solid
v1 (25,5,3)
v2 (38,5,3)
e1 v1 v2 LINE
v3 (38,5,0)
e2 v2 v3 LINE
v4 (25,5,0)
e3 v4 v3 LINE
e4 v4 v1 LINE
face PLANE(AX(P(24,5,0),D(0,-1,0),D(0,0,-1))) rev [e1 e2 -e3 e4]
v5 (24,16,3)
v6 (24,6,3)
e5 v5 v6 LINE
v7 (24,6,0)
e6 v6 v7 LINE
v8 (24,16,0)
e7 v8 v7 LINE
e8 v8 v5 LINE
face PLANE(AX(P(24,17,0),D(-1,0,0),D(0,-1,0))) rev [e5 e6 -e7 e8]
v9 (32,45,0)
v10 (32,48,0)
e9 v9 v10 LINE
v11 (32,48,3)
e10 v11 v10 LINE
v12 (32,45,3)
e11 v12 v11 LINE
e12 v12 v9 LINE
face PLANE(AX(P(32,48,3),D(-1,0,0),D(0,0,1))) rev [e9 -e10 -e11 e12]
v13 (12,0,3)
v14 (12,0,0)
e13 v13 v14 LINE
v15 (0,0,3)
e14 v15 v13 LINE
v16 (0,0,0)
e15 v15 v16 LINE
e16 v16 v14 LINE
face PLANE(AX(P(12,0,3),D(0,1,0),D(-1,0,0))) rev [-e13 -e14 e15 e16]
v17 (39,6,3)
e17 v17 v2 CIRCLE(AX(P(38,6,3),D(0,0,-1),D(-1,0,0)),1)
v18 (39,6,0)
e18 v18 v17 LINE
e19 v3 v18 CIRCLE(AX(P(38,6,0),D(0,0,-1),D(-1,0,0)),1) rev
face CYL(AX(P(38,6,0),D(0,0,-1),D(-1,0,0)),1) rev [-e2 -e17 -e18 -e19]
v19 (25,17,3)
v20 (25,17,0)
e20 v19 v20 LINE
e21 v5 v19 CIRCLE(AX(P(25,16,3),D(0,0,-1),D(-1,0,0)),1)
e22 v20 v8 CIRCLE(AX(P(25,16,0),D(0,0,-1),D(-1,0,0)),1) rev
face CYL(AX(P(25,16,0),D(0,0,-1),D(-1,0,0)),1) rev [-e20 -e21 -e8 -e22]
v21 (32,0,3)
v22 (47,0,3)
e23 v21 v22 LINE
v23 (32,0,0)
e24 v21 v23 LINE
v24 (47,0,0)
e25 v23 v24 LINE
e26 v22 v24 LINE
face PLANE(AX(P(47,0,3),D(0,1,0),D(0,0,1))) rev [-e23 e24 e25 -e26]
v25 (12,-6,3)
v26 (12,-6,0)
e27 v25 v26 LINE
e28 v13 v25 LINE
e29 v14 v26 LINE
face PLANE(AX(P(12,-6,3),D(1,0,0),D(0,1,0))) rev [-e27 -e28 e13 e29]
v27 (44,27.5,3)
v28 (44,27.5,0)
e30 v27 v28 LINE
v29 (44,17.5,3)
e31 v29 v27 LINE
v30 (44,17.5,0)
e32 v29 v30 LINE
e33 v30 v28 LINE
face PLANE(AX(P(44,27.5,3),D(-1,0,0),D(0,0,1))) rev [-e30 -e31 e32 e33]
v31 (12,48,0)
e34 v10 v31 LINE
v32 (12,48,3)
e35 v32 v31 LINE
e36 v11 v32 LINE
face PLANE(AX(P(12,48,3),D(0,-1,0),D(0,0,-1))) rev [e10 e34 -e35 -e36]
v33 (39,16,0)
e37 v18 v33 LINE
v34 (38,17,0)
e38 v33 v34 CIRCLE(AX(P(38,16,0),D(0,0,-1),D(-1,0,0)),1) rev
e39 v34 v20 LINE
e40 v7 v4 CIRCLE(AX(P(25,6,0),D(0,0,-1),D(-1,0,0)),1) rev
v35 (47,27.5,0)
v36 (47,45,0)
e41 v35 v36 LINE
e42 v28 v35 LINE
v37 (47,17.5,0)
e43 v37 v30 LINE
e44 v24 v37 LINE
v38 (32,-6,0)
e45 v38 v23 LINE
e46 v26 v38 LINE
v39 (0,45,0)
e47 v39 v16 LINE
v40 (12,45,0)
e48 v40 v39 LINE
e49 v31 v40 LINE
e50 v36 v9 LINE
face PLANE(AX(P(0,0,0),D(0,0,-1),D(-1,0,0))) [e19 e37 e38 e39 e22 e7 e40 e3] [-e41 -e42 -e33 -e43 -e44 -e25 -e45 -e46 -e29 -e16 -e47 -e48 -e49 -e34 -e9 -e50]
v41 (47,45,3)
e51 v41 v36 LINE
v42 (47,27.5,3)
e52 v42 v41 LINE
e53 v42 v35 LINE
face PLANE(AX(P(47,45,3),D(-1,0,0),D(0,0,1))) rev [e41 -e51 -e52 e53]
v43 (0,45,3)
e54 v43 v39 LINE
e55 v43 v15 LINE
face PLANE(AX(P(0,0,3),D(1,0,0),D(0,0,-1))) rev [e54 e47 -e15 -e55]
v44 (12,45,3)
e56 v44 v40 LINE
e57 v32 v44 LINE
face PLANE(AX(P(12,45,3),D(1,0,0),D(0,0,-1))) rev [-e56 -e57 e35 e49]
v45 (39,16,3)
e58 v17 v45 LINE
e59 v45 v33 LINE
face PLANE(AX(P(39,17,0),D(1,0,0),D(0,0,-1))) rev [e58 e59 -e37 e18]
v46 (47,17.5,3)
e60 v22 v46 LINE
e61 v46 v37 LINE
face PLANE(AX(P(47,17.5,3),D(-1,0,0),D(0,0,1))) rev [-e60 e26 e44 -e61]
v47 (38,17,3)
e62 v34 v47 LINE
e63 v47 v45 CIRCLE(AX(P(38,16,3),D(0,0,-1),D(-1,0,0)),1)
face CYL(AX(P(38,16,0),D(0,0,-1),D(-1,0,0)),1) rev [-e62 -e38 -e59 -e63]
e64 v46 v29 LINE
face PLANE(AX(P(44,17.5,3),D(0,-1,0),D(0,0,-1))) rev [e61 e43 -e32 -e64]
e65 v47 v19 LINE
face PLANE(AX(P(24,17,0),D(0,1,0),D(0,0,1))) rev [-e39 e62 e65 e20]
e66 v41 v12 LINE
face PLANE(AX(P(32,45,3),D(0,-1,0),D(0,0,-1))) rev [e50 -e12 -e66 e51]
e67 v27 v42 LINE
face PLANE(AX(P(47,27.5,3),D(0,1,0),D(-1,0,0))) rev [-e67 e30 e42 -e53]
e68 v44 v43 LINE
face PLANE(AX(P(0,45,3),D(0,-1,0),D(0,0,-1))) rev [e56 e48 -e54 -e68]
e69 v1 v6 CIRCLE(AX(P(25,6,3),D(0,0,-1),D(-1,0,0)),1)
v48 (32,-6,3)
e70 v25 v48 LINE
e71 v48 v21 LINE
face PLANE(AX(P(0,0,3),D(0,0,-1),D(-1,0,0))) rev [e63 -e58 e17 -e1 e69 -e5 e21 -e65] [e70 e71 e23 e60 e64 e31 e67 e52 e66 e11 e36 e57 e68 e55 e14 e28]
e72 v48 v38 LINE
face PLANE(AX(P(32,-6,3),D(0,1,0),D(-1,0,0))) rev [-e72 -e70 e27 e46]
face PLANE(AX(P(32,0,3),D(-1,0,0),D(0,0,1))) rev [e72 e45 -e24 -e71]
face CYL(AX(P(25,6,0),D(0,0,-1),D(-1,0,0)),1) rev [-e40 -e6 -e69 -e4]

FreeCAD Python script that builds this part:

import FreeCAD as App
import Part
import Sketcher

V = App.Vector


def edges_at(feature, points):
    """Names of the edges that pass closest to the given points."""
    edges = feature.Shape.Edges
    near = lambda p: min(range(len(edges)), key=lambda i: edges[i].distToShape(Part.Vertex(*p))[0])
    return sorted({f"Edge{near(p) + 1}" for p in points})

doc = App.newDocument("Part")
params = doc.addObject("Spreadsheet::Sheet", "Params")
for row, (alias, value) in enumerate([
    ("sketch1_width", "12 mm"),
    ("sketch1_width2", "20 mm"),
    ("sketch1_width3", "15 mm"),
    ("sketch1_width4", "3 mm"),
    ("sketch1_height", "45 mm"),
    ("pad1_length", "3 mm"),
    ("sketch2_width", "15 mm"),
    ("sketch2_height", "12 mm"),
    ("fillet_radius", "1 mm"),
], start=1):
    params.set(f"A{row}", alias)
    params.set(f"B{row}", "=" + value)
    params.setAlias(f"B{row}", alias)

body = doc.addObject("PartDesign::Body", "Body")

sketch1 = body.newObject("Sketcher::SketchObject", "Sketch")
sketch1.AttachmentSupport = (doc.getObject("XY_Plane"), [""])
sketch1.MapMode = "FlatFace"
sketch1.addGeometry([
    Part.LineSegment(V(0, 45, 0), V(0, 0, 0)),
    Part.LineSegment(V(0, 0, 0), V(12, 0, 0)),
    Part.LineSegment(V(12, 0, 0), V(12, -6, 0)),
    Part.LineSegment(V(12, -6, 0), V(32, -6, 0)),
    Part.LineSegment(V(32, -6, 0), V(32, 0, 0)),
    Part.LineSegment(V(32, 0, 0), V(47, 0, 0)),
    Part.LineSegment(V(47, 0, 0), V(47, 17.5, 0)),
    Part.LineSegment(V(47, 17.5, 0), V(44, 17.5, 0)),
    Part.LineSegment(V(44, 17.5, 0), V(44, 27.5, 0)),
    Part.LineSegment(V(44, 27.5, 0), V(47, 27.5, 0)),
    Part.LineSegment(V(47, 27.5, 0), V(47, 45, 0)),
    Part.LineSegment(V(47, 45, 0), V(32, 45, 0)),
    Part.LineSegment(V(32, 45, 0), V(32, 48, 0)),
    Part.LineSegment(V(32, 48, 0), V(12, 48, 0)),
    Part.LineSegment(V(12, 48, 0), V(12, 45, 0)),
    Part.LineSegment(V(12, 45, 0), V(0, 45, 0)),
], False)
sketch1.addConstraint([
    Sketcher.Constraint("Coincident", 0, 2, 1, 1),
    Sketcher.Constraint("Coincident", 1, 2, 2, 1),
    Sketcher.Constraint("Coincident", 2, 2, 3, 1),
    Sketcher.Constraint("Coincident", 3, 2, 4, 1),
    Sketcher.Constraint("Coincident", 4, 2, 5, 1),
    Sketcher.Constraint("Coincident", 5, 2, 6, 1),
    Sketcher.Constraint("Coincident", 6, 2, 7, 1),
    Sketcher.Constraint("Coincident", 7, 2, 8, 1),
    Sketcher.Constraint("Coincident", 8, 2, 9, 1),
    Sketcher.Constraint("Coincident", 9, 2, 10, 1),
    Sketcher.Constraint("Coincident", 10, 2, 11, 1),
    Sketcher.Constraint("Coincident", 11, 2, 12, 1),
    Sketcher.Constraint("Coincident", 12, 2, 13, 1),
    Sketcher.Constraint("Coincident", 13, 2, 14, 1),
    Sketcher.Constraint("Coincident", 14, 2, 15, 1),
    Sketcher.Constraint("Coincident", 15, 2, 0, 1),
    Sketcher.Constraint("Vertical", 0),
    Sketcher.Constraint("Horizontal", 1),
    Sketcher.Constraint("Vertical", 2),
    Sketcher.Constraint("Horizontal", 3),
    Sketcher.Constraint("Vertical", 4),
    Sketcher.Constraint("Horizontal", 5),
    Sketcher.Constraint("Vertical", 6),
    Sketcher.Constraint("Horizontal", 7),
    Sketcher.Constraint("Vertical", 8),
    Sketcher.Constraint("Horizontal", 9),
    Sketcher.Constraint("Vertical", 10),
    Sketcher.Constraint("Horizontal", 11),
    Sketcher.Constraint("Vertical", 12),
    Sketcher.Constraint("Horizontal", 13),
    Sketcher.Constraint("Vertical", 14),
    Sketcher.Constraint("Horizontal", 15),
    Sketcher.Constraint("Coincident", 0, 2, -1, 1),
    Sketcher.Constraint("PointOnObject", 4, 2, -1),
    Sketcher.Constraint("Horizontal", 11, 2, 14, 2),
    Sketcher.Constraint("Vertical", 6, 2, 9, 2),
    Sketcher.Constraint("Vertical", 4, 2, 11, 2),
    Sketcher.Constraint("Vertical", 2, 2, 13, 2),
    Sketcher.Constraint("Equal", 6, 10),
    Sketcher.Constraint("Equal", 9, 12),
    Sketcher.Constraint("DistanceX", 1, 1, 1, 2, 12.0),
    Sketcher.Constraint("DistanceX", 3, 1, 3, 2, 20.0),
    Sketcher.Constraint("DistanceX", 5, 1, 5, 2, 15.0),
    Sketcher.Constraint("DistanceX", 7, 2, 7, 1, 3.0),
    Sketcher.Constraint("DistanceY", 0, 2, 0, 1, 45.0),
    Sketcher.Constraint("DistanceY", 2, 2, 2, 1, 6.0),
    Sketcher.Constraint("DistanceY", 8, 1, 8, 2, 10.0),
])
sketch1.setExpression("Constraints[40]", "Params.sketch1_width")
sketch1.setExpression("Constraints[41]", "Params.sketch1_width2")
sketch1.setExpression("Constraints[42]", "Params.sketch1_width3")
sketch1.setExpression("Constraints[43]", "Params.sketch1_width4")
sketch1.setExpression("Constraints[44]", "Params.sketch1_height")
pad1 = body.newObject("PartDesign::Pad", "Pad")
pad1.Profile = sketch1
pad1.setExpression("Length", "Params.pad1_length")

sketch2 = body.newObject("Sketcher::SketchObject", "Sketch001")
sketch2.AttachmentSupport = (doc.getObject("XY_Plane"), [""])
sketch2.MapMode = "FlatFace"
sketch2.AttachmentOffset = App.Placement(V(0, 0, 3), App.Rotation())
sketch2.addGeometry([
    Part.LineSegment(V(24, 17, 0), V(24, 5, 0)),
    Part.LineSegment(V(24, 5, 0), V(39, 5, 0)),
    Part.LineSegment(V(39, 5, 0), V(39, 17, 0)),
    Part.LineSegment(V(39, 17, 0), V(24, 17, 0)),
], False)
sketch2.addConstraint([
    Sketcher.Constraint("Coincident", 0, 2, 1, 1),
    Sketcher.Constraint("Coincident", 1, 2, 2, 1),
    Sketcher.Constraint("Coincident", 2, 2, 3, 1),
    Sketcher.Constraint("Coincident", 3, 2, 0, 1),
    Sketcher.Constraint("Vertical", 0),
    Sketcher.Constraint("Horizontal", 1),
    Sketcher.Constraint("Vertical", 2),
    Sketcher.Constraint("Horizontal", 3),
    Sketcher.Constraint("DistanceX", 1, 1, 1, 2, 15.0),
    Sketcher.Constraint("DistanceY", 0, 2, 0, 1, 12.0),
    Sketcher.Constraint("DistanceX", -1, 1, 0, 2, 24.0),
    Sketcher.Constraint("DistanceY", -1, 1, 0, 2, 5.0),
])
sketch2.setExpression("Constraints[8]", "Params.sketch2_width")
sketch2.setExpression("Constraints[9]", "Params.sketch2_height")
pocket1 = body.newObject("PartDesign::Pocket", "Pocket")
pocket1.Profile = sketch2
pocket1.Type = "ThroughAll"
doc.recompute()

fillet = body.newObject("PartDesign::Fillet", "Fillet")
fillet.Base = (pocket1, edges_at(pocket1, [
    (24, 5, 1.5),
    (24, 17, 1.5),
    (39, 17, 1.5),
    (39, 5, 1.5),
]))
fillet.setExpression("Radius", "Params.fillet_radius")

doc.recompute()
